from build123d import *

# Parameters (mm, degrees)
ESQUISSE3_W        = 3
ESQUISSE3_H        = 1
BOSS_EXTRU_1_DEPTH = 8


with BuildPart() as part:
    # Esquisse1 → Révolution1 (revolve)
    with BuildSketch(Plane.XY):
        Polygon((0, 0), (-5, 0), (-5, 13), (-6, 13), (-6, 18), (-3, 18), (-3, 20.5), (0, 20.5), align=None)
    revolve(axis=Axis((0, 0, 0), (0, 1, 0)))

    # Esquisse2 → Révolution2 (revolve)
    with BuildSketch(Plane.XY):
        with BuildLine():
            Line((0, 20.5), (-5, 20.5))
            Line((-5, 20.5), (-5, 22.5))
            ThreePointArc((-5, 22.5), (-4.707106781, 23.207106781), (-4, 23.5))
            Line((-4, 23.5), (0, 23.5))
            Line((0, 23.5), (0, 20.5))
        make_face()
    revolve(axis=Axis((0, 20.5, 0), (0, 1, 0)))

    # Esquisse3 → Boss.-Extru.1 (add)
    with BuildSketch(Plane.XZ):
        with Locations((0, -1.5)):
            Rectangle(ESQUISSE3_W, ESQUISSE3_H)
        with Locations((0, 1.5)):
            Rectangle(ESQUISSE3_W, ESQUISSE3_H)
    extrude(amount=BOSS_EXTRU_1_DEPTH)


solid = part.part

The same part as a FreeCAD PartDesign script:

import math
import FreeCAD as App
import Part
import Sketcher
from FreeCAD import Vector


def add_polygon(sketch, points):
    """Adds a closed chain of lines whose ends are joined by coincident constraints."""
    first, n = sketch.GeometryCount, len(points)
    for a, b in zip(points, points[1:] + points[:1]):
        sketch.addGeometry(Part.LineSegment(App.Vector(*a, 0), App.Vector(*b, 0)), False)
    for i in range(n):
        sketch.addConstraint(Sketcher.Constraint("Coincident", first + i, 2, first + (i + 1) % n, 1))

doc = App.newDocument("Part")
body = doc.addObject("PartDesign::Body", "Body")

# Sketch on XY plane
sketch1 = body.newObject("Sketcher::SketchObject", "Sketch")
sketch1.AttachmentSupport = (doc.getObject("XY_Plane"), [""])
sketch1.MapMode = "FlatFace"
add_polygon(sketch1, [(-5, 0), (0, 0), (0, 20.5), (-3, 20.5), (-3, 18), (-6, 18), (-6, 13), (-5, 13)])  # lines 0-7
sketch1.addConstraint([
    Sketcher.Constraint("Horizontal", 0),
    Sketcher.Constraint("Vertical", 1),
    Sketcher.Constraint("Horizontal", 2),
    Sketcher.Constraint("Vertical", 3),
    Sketcher.Constraint("Horizontal", 4),
    Sketcher.Constraint("Vertical", 5),
    Sketcher.Constraint("Horizontal", 6),
    Sketcher.Constraint("Vertical", 7),
    Sketcher.Constraint("Coincident", 0, 2, -1, 1),
    Sketcher.Constraint("Equal", 2, 4),
    Sketcher.Constraint("Equal", 0, 5),
    Sketcher.Constraint("DistanceX", 0, 1, 0, 2, 5.0),
    Sketcher.Constraint("DistanceX", 2, 2, 2, 1, 3.0),
    Sketcher.Constraint("DistanceY", 7, 2, 7, 1, 13.0),
    Sketcher.Constraint("DistanceY", 1, 1, 1, 2, 20.5),
])
revolution = body.newObject("PartDesign::Revolution", "Revolution")
revolution.Profile = sketch1
revolution.ReferenceAxis = (sketch1, ["V_Axis"])
revolution.Angle = 360

# Sketch on XY plane
sketch2 = body.newObject("Sketcher::SketchObject", "Sketch001")
sketch2.AttachmentSupport = (doc.getObject("XY_Plane"), [""])
sketch2.MapMode = "FlatFace"
sketch2.addGeometry([
    Part.LineSegment(Vector(-5, 20.5, 0), Vector(0, 20.5, 0)),  # 0
    Part.LineSegment(Vector(0, 20.5, 0), Vector(0, 23.5, 0)),  # 1
    Part.LineSegment(Vector(0, 23.5, 0), Vector(-4, 23.5, 0)),  # 2
    Part.ArcOfCircle(Part.Circle(Vector(-4, 22.5, 0), Vector(0, 0, 1), 1), math.radians(90), math.radians(180)),  # 3
    Part.LineSegment(Vector(-5, 22.5, 0), Vector(-5, 20.5, 0)),  # 4
], False)
sketch2.addConstraint([
    Sketcher.Constraint("Coincident", 0, 2, 1, 1),
    Sketcher.Constraint("Coincident", 1, 2, 2, 1),
    Sketcher.Constraint("Tangent", 2, 2, 3, 1),
    Sketcher.Constraint("Tangent", 3, 2, 4, 1),
    Sketcher.Constraint("Coincident", 4, 2, 0, 1),
    Sketcher.Constraint("Horizontal", 0),
    Sketcher.Constraint("Vertical", 1),
    Sketcher.Constraint("Horizontal", 2),
    Sketcher.Constraint("Vertical", 4),
    Sketcher.Constraint("PointOnObject", 0, 2, -2),
    Sketcher.Constraint("Radius", 3, 1.0),
    Sketcher.Constraint("DistanceX", 0, 1, 0, 2, 5.0),
    Sketcher.Constraint("DistanceY", 1, 1, 1, 2, 3.0),
    Sketcher.Constraint("DistanceY", -1, 1, 3, 3, 22.5),
])
revolution2 = body.newObject("PartDesign::Revolution", "Revolution001")
revolution2.Profile = sketch2
revolution2.ReferenceAxis = (sketch2, ["V_Axis"])
revolution2.Angle = 360

# Sketch on XZ plane
sketch3 = body.newObject("Sketcher::SketchObject", "Sketch002")
sketch3.AttachmentSupport = (doc.getObject("XZ_Plane"), [""])
sketch3.MapMode = "FlatFace"
add_polygon(sketch3, [(-1.5, -1), (-1.5, -2), (1.5, -2), (1.5, -1)])  # lines 0-3
add_polygon(sketch3, [(-1.5, 2), (-1.5, 1), (1.5, 1), (1.5, 2)])  # lines 4-7
sketch3.addConstraint([
    Sketcher.Constraint("Vertical", 0),
    Sketcher.Constraint("Horizontal", 1),
    Sketcher.Constraint("Vertical", 2),
    Sketcher.Constraint("Horizontal", 3),
    Sketcher.Constraint("Vertical", 4),
    Sketcher.Constraint("Horizontal", 5),
    Sketcher.Constraint("Vertical", 6),
    Sketcher.Constraint("Horizontal", 7),
    Sketcher.Constraint("Symmetric", 2, 2, 4, 2, -1, 1),
    Sketcher.Constraint("Symmetric", 0, 2, 6, 2, -1, 1),
    Sketcher.Constraint("Vertical", 3, 2, 4, 2),
    Sketcher.Constraint("DistanceX", 1, 1, 1, 2, 3.0),
    Sketcher.Constraint("DistanceY", 0, 2, 0, 1, 1.0),
    Sketcher.Constraint("DistanceY", 0, 2, -1, 1, 2.0),
])
pad1 = body.newObject("PartDesign::Pad", "Pad")
pad1.Profile = sketch3
pad1.Length = 8

doc.recompute()
